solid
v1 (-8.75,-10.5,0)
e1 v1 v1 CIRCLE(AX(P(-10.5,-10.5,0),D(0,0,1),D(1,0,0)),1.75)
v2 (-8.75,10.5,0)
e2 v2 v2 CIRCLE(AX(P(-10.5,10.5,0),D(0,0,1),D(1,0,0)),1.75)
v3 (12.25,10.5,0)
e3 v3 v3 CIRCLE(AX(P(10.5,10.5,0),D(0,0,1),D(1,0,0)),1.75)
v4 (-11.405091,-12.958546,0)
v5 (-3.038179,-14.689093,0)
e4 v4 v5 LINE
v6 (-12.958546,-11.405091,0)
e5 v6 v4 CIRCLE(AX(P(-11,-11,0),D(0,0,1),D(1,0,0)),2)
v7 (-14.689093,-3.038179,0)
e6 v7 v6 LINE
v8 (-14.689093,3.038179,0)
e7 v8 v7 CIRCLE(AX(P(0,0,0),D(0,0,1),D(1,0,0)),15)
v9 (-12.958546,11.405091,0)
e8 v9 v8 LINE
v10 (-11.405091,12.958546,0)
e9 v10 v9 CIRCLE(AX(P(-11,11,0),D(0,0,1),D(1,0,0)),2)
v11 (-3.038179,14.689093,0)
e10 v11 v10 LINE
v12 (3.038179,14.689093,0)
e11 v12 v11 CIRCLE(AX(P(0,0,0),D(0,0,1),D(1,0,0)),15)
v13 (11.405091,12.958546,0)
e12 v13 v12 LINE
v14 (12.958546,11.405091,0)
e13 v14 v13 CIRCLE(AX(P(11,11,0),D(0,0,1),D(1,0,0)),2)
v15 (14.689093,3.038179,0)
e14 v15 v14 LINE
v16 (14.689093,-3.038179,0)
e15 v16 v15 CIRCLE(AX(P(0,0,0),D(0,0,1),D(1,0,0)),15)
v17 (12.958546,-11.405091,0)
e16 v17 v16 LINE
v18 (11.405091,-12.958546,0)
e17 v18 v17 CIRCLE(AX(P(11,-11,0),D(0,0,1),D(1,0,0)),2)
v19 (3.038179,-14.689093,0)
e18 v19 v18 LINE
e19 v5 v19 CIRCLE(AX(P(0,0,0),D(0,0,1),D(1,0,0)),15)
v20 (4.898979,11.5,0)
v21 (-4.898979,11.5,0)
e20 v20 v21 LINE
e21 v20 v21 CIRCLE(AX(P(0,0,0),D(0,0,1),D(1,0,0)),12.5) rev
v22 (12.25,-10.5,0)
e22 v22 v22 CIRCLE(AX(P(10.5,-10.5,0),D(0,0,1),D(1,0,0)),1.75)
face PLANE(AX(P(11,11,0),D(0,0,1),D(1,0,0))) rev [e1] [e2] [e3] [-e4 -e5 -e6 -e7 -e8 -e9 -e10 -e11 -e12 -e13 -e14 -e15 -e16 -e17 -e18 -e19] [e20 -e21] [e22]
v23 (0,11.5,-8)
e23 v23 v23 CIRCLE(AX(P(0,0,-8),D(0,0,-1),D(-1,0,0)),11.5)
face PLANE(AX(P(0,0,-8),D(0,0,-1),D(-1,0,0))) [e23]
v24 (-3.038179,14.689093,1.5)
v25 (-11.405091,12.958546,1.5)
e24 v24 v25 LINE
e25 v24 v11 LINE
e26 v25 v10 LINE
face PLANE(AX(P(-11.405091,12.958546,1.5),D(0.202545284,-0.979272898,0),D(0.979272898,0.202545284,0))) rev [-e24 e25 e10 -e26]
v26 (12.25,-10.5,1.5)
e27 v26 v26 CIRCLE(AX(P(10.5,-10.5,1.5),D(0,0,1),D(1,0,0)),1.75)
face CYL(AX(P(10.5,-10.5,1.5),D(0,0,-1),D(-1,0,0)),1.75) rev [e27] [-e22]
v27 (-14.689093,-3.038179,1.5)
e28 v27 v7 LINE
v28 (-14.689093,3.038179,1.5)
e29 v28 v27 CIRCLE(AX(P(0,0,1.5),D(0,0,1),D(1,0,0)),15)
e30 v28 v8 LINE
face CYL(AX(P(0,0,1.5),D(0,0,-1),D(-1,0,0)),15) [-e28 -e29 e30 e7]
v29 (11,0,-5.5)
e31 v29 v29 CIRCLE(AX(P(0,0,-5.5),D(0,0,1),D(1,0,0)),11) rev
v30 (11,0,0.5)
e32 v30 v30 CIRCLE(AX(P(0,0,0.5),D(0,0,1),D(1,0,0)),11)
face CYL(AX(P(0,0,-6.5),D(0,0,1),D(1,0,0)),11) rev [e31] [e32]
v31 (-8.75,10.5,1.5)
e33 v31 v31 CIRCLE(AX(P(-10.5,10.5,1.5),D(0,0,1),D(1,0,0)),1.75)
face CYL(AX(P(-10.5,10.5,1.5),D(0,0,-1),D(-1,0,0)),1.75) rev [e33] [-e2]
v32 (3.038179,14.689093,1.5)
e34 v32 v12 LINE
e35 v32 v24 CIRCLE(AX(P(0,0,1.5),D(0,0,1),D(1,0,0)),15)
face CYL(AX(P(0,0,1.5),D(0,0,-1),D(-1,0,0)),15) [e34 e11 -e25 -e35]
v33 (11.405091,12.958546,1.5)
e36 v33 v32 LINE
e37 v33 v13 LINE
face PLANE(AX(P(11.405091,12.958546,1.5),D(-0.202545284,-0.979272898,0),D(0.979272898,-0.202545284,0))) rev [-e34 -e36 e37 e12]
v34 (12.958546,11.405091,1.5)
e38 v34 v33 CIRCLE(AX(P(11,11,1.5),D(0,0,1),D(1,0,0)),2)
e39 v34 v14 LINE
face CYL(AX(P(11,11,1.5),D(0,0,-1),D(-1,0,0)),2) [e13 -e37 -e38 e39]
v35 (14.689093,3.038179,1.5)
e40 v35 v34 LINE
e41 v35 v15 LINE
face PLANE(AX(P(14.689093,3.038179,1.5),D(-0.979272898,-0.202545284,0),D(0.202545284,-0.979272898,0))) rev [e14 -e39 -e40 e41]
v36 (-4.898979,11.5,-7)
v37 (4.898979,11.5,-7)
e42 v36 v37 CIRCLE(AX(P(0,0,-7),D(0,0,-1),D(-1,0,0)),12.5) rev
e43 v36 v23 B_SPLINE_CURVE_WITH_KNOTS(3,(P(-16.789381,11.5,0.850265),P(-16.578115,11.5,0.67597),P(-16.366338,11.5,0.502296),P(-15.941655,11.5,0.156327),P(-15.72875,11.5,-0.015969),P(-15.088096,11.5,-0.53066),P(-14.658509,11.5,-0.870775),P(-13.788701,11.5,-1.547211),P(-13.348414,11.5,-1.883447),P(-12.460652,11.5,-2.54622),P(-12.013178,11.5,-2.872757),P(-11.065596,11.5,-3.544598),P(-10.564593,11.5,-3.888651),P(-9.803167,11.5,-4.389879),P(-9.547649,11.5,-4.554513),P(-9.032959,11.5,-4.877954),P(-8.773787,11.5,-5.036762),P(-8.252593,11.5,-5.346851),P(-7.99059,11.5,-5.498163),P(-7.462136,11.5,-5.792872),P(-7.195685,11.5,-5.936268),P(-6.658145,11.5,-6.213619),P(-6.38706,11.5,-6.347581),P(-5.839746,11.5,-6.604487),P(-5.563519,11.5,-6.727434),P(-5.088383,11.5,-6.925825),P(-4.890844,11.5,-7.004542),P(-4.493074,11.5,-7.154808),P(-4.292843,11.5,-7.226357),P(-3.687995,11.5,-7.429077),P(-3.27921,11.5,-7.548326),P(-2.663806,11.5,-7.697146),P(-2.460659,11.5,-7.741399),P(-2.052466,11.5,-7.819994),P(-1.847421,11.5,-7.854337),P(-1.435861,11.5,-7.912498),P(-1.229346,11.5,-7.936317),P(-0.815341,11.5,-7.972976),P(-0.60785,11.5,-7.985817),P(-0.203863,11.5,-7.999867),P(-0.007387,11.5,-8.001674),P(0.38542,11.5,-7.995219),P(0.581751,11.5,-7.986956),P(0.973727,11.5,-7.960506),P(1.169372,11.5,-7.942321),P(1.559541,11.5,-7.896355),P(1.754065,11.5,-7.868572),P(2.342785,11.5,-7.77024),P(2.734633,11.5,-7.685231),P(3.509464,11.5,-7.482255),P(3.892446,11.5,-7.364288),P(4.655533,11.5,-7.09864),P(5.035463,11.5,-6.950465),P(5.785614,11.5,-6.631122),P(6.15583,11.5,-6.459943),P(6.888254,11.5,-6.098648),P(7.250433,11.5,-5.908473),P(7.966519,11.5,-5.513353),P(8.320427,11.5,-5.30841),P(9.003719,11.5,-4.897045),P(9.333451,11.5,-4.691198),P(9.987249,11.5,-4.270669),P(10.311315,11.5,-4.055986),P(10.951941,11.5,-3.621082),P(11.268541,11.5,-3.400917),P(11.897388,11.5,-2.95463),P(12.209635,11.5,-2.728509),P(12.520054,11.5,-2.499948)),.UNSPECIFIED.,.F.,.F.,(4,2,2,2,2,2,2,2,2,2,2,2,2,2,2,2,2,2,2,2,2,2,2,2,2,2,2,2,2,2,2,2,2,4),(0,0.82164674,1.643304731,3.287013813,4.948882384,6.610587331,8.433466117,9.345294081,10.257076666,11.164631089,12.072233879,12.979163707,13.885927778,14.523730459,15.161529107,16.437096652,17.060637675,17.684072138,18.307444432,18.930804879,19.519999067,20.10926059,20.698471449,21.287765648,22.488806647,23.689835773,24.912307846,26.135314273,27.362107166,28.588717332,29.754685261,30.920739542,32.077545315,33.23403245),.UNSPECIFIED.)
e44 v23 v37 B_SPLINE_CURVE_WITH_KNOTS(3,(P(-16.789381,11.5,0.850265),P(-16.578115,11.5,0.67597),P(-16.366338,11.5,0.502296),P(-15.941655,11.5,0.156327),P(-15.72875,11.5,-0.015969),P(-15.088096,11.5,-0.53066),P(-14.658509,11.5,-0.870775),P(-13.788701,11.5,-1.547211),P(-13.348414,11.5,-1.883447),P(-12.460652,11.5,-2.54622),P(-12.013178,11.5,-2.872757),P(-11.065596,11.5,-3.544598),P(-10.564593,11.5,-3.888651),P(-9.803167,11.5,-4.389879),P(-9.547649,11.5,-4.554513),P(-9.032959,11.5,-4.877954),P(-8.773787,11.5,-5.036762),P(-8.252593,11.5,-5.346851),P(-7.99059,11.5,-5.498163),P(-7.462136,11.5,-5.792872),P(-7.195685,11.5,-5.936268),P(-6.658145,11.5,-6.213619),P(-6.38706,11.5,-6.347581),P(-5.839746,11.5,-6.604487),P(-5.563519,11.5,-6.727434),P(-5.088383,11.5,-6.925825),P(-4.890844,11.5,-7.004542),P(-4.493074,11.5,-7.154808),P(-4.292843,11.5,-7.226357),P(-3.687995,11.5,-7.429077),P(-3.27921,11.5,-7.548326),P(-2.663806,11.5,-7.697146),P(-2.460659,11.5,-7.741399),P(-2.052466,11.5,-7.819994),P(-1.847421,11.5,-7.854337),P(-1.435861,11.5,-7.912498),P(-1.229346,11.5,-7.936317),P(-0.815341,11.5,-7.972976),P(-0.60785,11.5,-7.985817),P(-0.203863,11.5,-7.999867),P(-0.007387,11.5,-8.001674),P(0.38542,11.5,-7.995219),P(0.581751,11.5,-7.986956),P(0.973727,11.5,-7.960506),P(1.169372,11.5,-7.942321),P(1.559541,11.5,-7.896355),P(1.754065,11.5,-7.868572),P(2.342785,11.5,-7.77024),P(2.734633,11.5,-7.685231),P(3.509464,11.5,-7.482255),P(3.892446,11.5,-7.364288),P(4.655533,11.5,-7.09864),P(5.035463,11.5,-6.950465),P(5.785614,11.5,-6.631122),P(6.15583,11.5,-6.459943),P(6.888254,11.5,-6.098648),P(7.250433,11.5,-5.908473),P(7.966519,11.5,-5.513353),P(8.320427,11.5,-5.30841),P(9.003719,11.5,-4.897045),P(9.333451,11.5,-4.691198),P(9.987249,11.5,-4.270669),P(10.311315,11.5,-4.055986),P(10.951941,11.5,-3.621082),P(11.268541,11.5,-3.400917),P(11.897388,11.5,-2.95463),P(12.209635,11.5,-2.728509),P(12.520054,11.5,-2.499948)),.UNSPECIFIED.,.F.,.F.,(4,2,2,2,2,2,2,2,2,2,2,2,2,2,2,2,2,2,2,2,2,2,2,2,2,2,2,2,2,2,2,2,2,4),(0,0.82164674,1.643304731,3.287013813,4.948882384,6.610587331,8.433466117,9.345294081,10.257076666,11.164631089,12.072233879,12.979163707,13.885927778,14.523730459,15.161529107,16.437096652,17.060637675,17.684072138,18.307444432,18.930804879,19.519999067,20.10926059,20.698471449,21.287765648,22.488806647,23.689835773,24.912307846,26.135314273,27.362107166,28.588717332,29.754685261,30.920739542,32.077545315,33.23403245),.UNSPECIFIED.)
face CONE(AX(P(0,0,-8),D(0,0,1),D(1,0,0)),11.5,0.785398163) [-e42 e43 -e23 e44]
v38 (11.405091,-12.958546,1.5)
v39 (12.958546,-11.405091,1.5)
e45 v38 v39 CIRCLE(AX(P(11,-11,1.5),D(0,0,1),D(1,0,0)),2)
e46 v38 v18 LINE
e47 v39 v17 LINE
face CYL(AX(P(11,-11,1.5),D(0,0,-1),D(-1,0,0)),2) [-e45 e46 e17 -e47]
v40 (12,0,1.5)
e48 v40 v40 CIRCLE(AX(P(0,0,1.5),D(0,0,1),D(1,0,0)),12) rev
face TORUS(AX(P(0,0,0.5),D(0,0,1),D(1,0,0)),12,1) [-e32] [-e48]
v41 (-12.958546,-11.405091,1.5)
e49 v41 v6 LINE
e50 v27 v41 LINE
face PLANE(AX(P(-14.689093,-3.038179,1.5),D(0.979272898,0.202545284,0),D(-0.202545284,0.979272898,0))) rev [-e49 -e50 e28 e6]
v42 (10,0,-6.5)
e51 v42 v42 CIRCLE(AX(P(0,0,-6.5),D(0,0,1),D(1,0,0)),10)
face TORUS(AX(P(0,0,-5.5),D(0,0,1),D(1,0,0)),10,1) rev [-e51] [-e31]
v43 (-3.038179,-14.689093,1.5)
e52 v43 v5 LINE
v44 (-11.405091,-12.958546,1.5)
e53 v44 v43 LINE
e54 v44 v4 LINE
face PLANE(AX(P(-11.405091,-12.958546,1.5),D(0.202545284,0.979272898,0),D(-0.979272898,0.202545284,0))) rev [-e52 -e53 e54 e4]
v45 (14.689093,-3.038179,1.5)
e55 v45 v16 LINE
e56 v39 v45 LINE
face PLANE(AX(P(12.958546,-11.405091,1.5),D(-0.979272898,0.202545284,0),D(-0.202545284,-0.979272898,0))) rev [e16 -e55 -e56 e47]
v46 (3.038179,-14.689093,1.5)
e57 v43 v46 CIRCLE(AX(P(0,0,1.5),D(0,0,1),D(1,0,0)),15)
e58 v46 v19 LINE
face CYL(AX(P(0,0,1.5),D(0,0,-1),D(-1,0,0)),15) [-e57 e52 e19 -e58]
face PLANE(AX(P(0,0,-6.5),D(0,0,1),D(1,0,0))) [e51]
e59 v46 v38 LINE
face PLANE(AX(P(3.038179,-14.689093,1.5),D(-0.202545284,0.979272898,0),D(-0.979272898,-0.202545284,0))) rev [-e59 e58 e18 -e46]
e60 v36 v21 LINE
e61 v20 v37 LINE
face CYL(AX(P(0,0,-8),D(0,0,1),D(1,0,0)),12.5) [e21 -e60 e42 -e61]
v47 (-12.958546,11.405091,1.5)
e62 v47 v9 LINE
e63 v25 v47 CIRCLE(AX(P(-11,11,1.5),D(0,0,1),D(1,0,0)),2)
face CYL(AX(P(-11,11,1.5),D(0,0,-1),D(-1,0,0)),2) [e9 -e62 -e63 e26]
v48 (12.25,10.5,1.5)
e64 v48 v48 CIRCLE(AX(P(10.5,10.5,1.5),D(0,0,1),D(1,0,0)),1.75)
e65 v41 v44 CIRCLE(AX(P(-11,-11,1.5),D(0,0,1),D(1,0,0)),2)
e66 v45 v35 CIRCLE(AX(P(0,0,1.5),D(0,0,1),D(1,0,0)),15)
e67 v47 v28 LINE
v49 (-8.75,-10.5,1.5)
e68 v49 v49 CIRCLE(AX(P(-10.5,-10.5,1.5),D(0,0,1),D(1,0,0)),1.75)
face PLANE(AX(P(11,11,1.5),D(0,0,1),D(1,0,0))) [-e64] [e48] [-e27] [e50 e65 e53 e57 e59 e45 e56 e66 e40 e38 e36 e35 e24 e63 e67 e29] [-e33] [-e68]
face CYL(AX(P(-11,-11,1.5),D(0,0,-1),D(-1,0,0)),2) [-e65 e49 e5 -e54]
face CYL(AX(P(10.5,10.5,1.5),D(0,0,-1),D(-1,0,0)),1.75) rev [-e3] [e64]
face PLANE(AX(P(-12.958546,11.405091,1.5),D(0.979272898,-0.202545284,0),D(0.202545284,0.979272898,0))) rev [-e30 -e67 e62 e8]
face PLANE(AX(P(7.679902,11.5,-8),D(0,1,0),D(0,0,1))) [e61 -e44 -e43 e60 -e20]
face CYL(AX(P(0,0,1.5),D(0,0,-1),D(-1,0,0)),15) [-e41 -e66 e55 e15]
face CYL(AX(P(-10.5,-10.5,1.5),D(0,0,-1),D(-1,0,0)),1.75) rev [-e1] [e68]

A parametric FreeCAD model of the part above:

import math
import FreeCAD as App
import Part
import Sketcher
Q = App.Units.Quantity


def edges_at(feature, points):
    """Names of the edges that pass closest to the given points."""
    edges = feature.Shape.Edges
    near = lambda p: min(range(len(edges)), key=lambda i: edges[i].distToShape(Part.Vertex(*p))[0])
    return sorted({f"Edge{near(p) + 1}" for p in points})

doc = App.newDocument("Part")
params = doc.addObject("Spreadsheet::Sheet", "Params")
for row, (alias, value) in enumerate([
    ("sketch1_radius", "15 mm"),
    ("sketch1_radius2", "2 mm"),
    ("sketch1_diameter", "3.5 mm"),
    ("pad1_length", "1.5 mm"),
    ("sketch2_diameter", "25 mm"),
    ("pad2_length", "8 mm"),
    ("chamfer_size", "1 mm"),
    ("sketch3_diameter", "22 mm"),
    ("pocket1_length", "8 mm"),
    ("fillet_radius", "1 mm"),
    ("pocket2_length", "8 mm"),
], start=1):
    params.set(f"A{row}", alias)
    params.set(f"B{row}", "=" + value)
    params.setAlias(f"B{row}", alias)

body = doc.addObject("PartDesign::Body", "Body")

# Sketch on XY plane
sketch1 = doc.addObject("Sketcher::SketchObject", "Sketch")
body.addObject(sketch1)
sketch1.AttachmentSupport = (doc.XY_Plane, [""])
sketch1.MapMode = "FlatFace"
sketch1.addGeometry([
    Part.LineSegment(App.Vector(-11.4, -13, 0), App.Vector(-3, -14.7, 0)),  # 0
    Part.ArcOfCircle(Part.Circle(App.Vector(0, 0, 0), App.Vector(0, 0, 1), 15), math.radians(-102), math.radians(-78)),  # 1
    Part.LineSegment(App.Vector(3, -14.7, 0), App.Vector(11.4, -13, 0)),  # 2
    Part.ArcOfCircle(Part.Circle(App.Vector(11, -11, 0), App.Vector(0, 0, 1), 2), math.radians(-78), math.radians(-12)),  # 3
    Part.LineSegment(App.Vector(13, -11.4, 0), App.Vector(14.7, -3, 0)),  # 4
    Part.ArcOfCircle(Part.Circle(App.Vector(0, 0, 0), App.Vector(0, 0, 1), 15), math.radians(-12), math.radians(12)),  # 5
    Part.LineSegment(App.Vector(14.7, 3, 0), App.Vector(13, 11.4, 0)),  # 6
    Part.ArcOfCircle(Part.Circle(App.Vector(11, 11, 0), App.Vector(0, 0, 1), 2), math.radians(12), math.radians(78)),  # 7
    Part.LineSegment(App.Vector(11.4, 13, 0), App.Vector(3, 14.7, 0)),  # 8
    Part.ArcOfCircle(Part.Circle(App.Vector(0, 0, 0), App.Vector(0, 0, 1), 15), math.radians(78), math.radians(102)),  # 9
    Part.LineSegment(App.Vector(-3, 14.7, 0), App.Vector(-11.4, 13, 0)),  # 10
    Part.ArcOfCircle(Part.Circle(App.Vector(-11, 11, 0), App.Vector(0, 0, 1), 2), math.radians(102), math.radians(168)),  # 11
    Part.LineSegment(App.Vector(-13, 11.4, 0), App.Vector(-14.7, 3, 0)),  # 12
    Part.ArcOfCircle(Part.Circle(App.Vector(0, 0, 0), App.Vector(0, 0, 1), 15), math.radians(168), math.radians(192)),  # 13
    Part.LineSegment(App.Vector(-14.7, -3, 0), App.Vector(-13, -11.4, 0)),  # 14
    Part.ArcOfCircle(Part.Circle(App.Vector(-11, -11, 0), App.Vector(0, 0, 1), 2), math.radians(-168), math.radians(-102)),  # 15
    Part.Circle(App.Vector(-10.5, -10.5, 0), App.Vector(0, 0, 1), 1.8),  # 16
    Part.Circle(App.Vector(10.5, -10.5, 0), App.Vector(0, 0, 1), 1.8),  # 17
    Part.Circle(App.Vector(-10.5, 10.5, 0), App.Vector(0, 0, 1), 1.8),  # 18
    Part.Circle(App.Vector(10.5, 10.5, 0), App.Vector(0, 0, 1), 1.8),  # 19
], False)
sketch1.addConstraint([
    Sketcher.Constraint("Tangent", 0, 2, 1, 1),
    Sketcher.Constraint("Tangent", 1, 2, 2, 1),
    Sketcher.Constraint("Tangent", 2, 2, 3, 1),
    Sketcher.Constraint("Tangent", 3, 2, 4, 1),
    Sketcher.Constraint("Tangent", 4, 2, 5, 1),
    Sketcher.Constraint("Tangent", 5, 2, 6, 1),
    Sketcher.Constraint("Tangent", 6, 2, 7, 1),
    Sketcher.Constraint("Tangent", 7, 2, 8, 1),
    Sketcher.Constraint("Tangent", 8, 2, 9, 1),
    Sketcher.Constraint("Tangent", 9, 2, 10, 1),
    Sketcher.Constraint("Tangent", 10, 2, 11, 1),
    Sketcher.Constraint("Tangent", 11, 2, 12, 1),
    Sketcher.Constraint("Tangent", 12, 2, 13, 1),
    Sketcher.Constraint("Tangent", 13, 2, 14, 1),
    Sketcher.Constraint("Tangent", 14, 2, 15, 1),
    Sketcher.Constraint("Tangent", 15, 2, 0, 1),
    Sketcher.Constraint("Coincident", 1, 3, -1, 1),
    Sketcher.Constraint("Coincident", 5, 3, -1, 1),
    Sketcher.Constraint("Coincident", 9, 3, -1, 1),
    Sketcher.Constraint("Coincident", 13, 3, -1, 1),
    Sketcher.Constraint("Equal", 1, 5),
    Sketcher.Constraint("Equal", 3, 7),
    Sketcher.Constraint("Equal", 5, 9),
    Sketcher.Constraint("Equal", 7, 11),
    Sketcher.Constraint("Equal", 9, 13),
    Sketcher.Constraint("Equal", 11, 15),
    Sketcher.Constraint("Equal", 16, 17),
    Sketcher.Constraint("Equal", 17, 18),
    Sketcher.Constraint("Equal", 18, 19),
    Sketcher.Constraint("Symmetric", 3, 3, 11, 3, -1, 1),
    Sketcher.Constraint("Symmetric", 7, 3, 15, 3, -1, 1),
    Sketcher.Constraint("Symmetric", 17, 3, 18, 3, -1, 1),
    Sketcher.Constraint("Symmetric", 16, 3, 19, 3, -1, 1),
    Sketcher.Constraint("Symmetric", 7, 3, 11, 3, -2),
    Sketcher.Constraint("Symmetric", 16, 3, 17, 3, -2),
    Sketcher.Constraint("Perpendicular", 0, 4),
    Sketcher.Constraint("Radius", 1, Q("15 mm")),
    Sketcher.Constraint("Radius", 3, Q("2 mm")),
    Sketcher.Constraint("Diameter", 16, Q("3.5 mm")),
    Sketcher.Constraint("DistanceX", -1, 1, 3, 3, Q("11 mm")),
    Sketcher.Constraint("DistanceX", 16, 3, -1, 1, Q("10.5 mm")),
    Sketcher.Constraint("DistanceY", 16, 3, -1, 1, Q("10.5 mm")),
])
sketch1.setExpression("Constraints[36]", "Params.sketch1_radius")
sketch1.setExpression("Constraints[37]", "Params.sketch1_radius2")
sketch1.setExpression("Constraints[38]", "Params.sketch1_diameter")
pad1 = doc.addObject("PartDesign::Pad", "Pad")
body.addObject(pad1)
pad1.Profile = sketch1
pad1.setExpression("Length", "Params.pad1_length")

# Sketch on XY plane
sketch2 = doc.addObject("Sketcher::SketchObject", "Sketch001")
body.addObject(sketch2)
sketch2.AttachmentSupport = (doc.XY_Plane, [""])
sketch2.MapMode = "FlatFace"
sketch2.addGeometry(Part.Circle(App.Vector(0, 0, 0), App.Vector(0, 0, 1), 12), False)
sketch2.addConstraint([
    Sketcher.Constraint("Coincident", 0, 3, -1, 1),
    Sketcher.Constraint("Diameter", 0, Q("25 mm")),
])
sketch2.setExpression("Constraints[1]", "Params.sketch2_diameter")
pad2 = doc.addObject("PartDesign::Pad", "Pad001")
body.addObject(pad2)
pad2.Profile = sketch2
pad2.setExpression("Length", "Params.pad2_length")
pad2.Reversed = True
doc.recompute()

chamfer = doc.addObject("PartDesign::Chamfer", "Chamfer")
body.addObject(chamfer)
chamfer.Base = (pad2, edges_at(pad2, [(-12.5, 0, -8)]))
chamfer.setExpression("Size", "Params.chamfer_size")

# Sketch on XY plane
sketch3 = doc.addObject("Sketcher::SketchObject", "Sketch002")
body.addObject(sketch3)
sketch3.AttachmentSupport = (doc.XY_Plane, [""])
sketch3.MapMode = "FlatFace"
sketch3.AttachmentOffset = App.Placement(App.Vector(0, 0, 1.5), App.Rotation())
sketch3.addGeometry(Part.Circle(App.Vector(0, 0, 0), App.Vector(0, 0, 1), 11), False)
sketch3.addConstraint([
    Sketcher.Constraint("Coincident", 0, 3, -1, 1),
    Sketcher.Constraint("Diameter", 0, Q("22 mm")),
])
sketch3.setExpression("Constraints[1]", "Params.sketch3_diameter")
pocket1 = doc.addObject("PartDesign::Pocket", "Pocket")
body.addObject(pocket1)
pocket1.Profile = sketch3
pocket1.setExpression("Length", "Params.pocket1_length")
doc.recompute()

fillet = doc.addObject("PartDesign::Fillet", "Fillet")
body.addObject(fillet)
fillet.Base = (pocket1, edges_at(pocket1, [(-11, 0, -6.5), (-11, 0, 1.5)]))
fillet.setExpression("Radius", "Params.fillet_radius")

# Sketch on XY plane
sketch4 = doc.addObject("Sketcher::SketchObject", "Sketch003")
body.addObject(sketch4)
sketch4.AttachmentSupport = (doc.XY_Plane, [""])
sketch4.MapMode = "FlatFace"
sketch4.addGeometry([
    Part.LineSegment(App.Vector(8, 17, 0), App.Vector(8, 12, 0)),
    Part.LineSegment(App.Vector(8, 12, 0), App.Vector(-7, 12, 0)),
    Part.LineSegment(App.Vector(-7, 12, 0), App.Vector(-7, 17, 0)),
    Part.LineSegment(App.Vector(-7, 17, 0), App.Vector(8, 17, 0)),
], False)
sketch4.addConstraint([
    Sketcher.Constraint("Coincident", 0, 2, 1, 1),
    Sketcher.Constraint("Coincident", 1, 2, 2, 1),
    Sketcher.Constraint("Coincident", 2, 2, 3, 1),
    Sketcher.Constraint("Coincident", 3, 2, 0, 1),
    Sketcher.Constraint("Vertical", 0),
    Sketcher.Constraint("Horizontal", 1),
    Sketcher.Constraint("Vertical", 2),
    Sketcher.Constraint("Horizontal", 3),
    Sketcher.Constraint("DistanceY", -1, 1, 0, 2, Q("11.5 mm")),
    Sketcher.Constraint("DistanceX", 1, 2, 1, 1, Q("15.14347 mm")),
    Sketcher.Constraint("DistanceY", 0, 2, 0, 1, Q("5.58145 mm")),
    Sketcher.Constraint("DistanceX", -1, 1, 0, 2, Q("7.679902 mm")),
])
pocket2 = doc.addObject("PartDesign::Pocket", "Pocket001")
body.addObject(pocket2)
pocket2.Profile = sketch4
pocket2.setExpression("Length", "Params.pocket2_length")

doc.recompute()
